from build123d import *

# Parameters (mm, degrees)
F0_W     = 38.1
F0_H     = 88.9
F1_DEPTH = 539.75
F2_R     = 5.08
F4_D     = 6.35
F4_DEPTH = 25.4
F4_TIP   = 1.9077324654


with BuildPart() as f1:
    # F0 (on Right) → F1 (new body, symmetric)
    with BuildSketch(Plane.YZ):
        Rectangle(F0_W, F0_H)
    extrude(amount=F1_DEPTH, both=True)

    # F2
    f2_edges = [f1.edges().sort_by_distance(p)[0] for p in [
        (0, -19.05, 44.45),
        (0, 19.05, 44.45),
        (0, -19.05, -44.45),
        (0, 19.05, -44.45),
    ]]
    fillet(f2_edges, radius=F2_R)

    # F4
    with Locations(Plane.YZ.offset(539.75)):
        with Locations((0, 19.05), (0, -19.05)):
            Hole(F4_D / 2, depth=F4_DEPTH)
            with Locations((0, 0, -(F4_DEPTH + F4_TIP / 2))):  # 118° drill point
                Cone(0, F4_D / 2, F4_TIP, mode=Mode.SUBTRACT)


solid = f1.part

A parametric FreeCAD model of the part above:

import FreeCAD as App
import Part
import Sketcher
Q = App.Units.Quantity


def edges_at(feature, points):
    """Names of the edges that pass closest to the given points."""
    edges = feature.Shape.Edges
    near = lambda p: min(range(len(edges)), key=lambda i: edges[i].distToShape(Part.Vertex(*p))[0])
    return sorted({f"Edge{near(p) + 1}" for p in points})


def add_polygon(sketch, points):
    """Adds a closed chain of lines whose ends are joined by coincident constraints."""
    first, n = sketch.GeometryCount, len(points)
    for a, b in zip(points, points[1:] + points[:1]):
        sketch.addGeometry(Part.LineSegment(App.Vector(*a, 0), App.Vector(*b, 0)), False)
    for i in range(n):
        sketch.addConstraint(Sketcher.Constraint("Coincident", first + i, 2, first + (i + 1) % n, 1))

doc = App.newDocument("Part")
params = doc.addObject("Spreadsheet::Sheet", "Params")
for row, (alias, value) in enumerate([
    ("sketch1_width", "1.5 in"),
    ("sketch1_height", "3.5 in"),
    ("pad1_length", "42.5 in"),
    ("fillet_radius", "0.2 in"),
    ("sketch2_diameter", "0.25 in"),
    ("hole_diameter", "0.25 in"),
    ("hole_depth", "1 in"),
], start=1):
    params.set(f"A{row}", alias)
    params.set(f"B{row}", "=" + value)
    params.setAlias(f"B{row}", alias)

body = doc.addObject("PartDesign::Body", "Body")

# Sketch on YZ plane
sketch1 = doc.addObject("Sketcher::SketchObject", "Sketch")
body.addObject(sketch1)
sketch1.AttachmentSupport = (doc.YZ_Plane, [""])
sketch1.MapMode = "FlatFace"
add_polygon(sketch1, [(-19.05, 44.45), (-19.05, -44.45), (19.05, -44.45), (19.05, 44.45)])  # lines 0-3
sketch1.addConstraint([
    Sketcher.Constraint("Vertical", 0),
    Sketcher.Constraint("Horizontal", 1),
    Sketcher.Constraint("Vertical", 2),
    Sketcher.Constraint("Horizontal", 3),
    Sketcher.Constraint("Symmetric", 0, 2, 2, 2, -1, 1),
    Sketcher.Constraint("DistanceX", 1, 1, 1, 2, Q("1.5 in")),
    Sketcher.Constraint("DistanceY", 0, 2, 0, 1, Q("3.5 in")),
])
sketch1.setExpression("Constraints[9]", "Params.sketch1_width")
sketch1.setExpression("Constraints[10]", "Params.sketch1_height")
pad1 = doc.addObject("PartDesign::Pad", "Pad")
body.addObject(pad1)
pad1.Profile = sketch1
pad1.setExpression("Length", "Params.pad1_length")
pad1.Midplane = True
doc.recompute()

fillet = doc.addObject("PartDesign::Fillet", "Fillet")
body.addObject(fillet)
fillet.Base = (pad1, edges_at(pad1, [
    (0, -19.05, 44.45),
    (0, 19.05, 44.45),
    (0, -19.05, -44.45),
    (0, 19.05, -44.45),
]))
fillet.setExpression("Radius", "Params.fillet_radius")

# Sketch on YZ plane
sketch2 = doc.addObject("Sketcher::SketchObject", "Sketch001")
body.addObject(sketch2)
sketch2.AttachmentSupport = (doc.YZ_Plane, [""])
sketch2.MapMode = "FlatFace"
sketch2.AttachmentOffset = App.Placement(App.Vector(0, 0, 21.25 * 25.4), App.Rotation())
sketch2.addGeometry([
    Part.Circle(App.Vector(0, 19.05, 0), App.Vector(0, 0, 1), 3.175),
    Part.Circle(App.Vector(0, -19.05, 0), App.Vector(0, 0, 1), 3.175),
], False)
sketch2.addConstraint([
    Sketcher.Constraint("Equal", 0, 1),
    Sketcher.Constraint("Symmetric", 0, 3, 1, 3, -1, 1),
    Sketcher.Constraint("PointOnObject", 0, 3, -2),
    Sketcher.Constraint("Diameter", 0, Q("0.25 in")),
    Sketcher.Constraint("DistanceY", 1, 3, 0, 3, Q("1.5 in")),
])
sketch2.setExpression("Constraints[3]", "Params.sketch2_diameter")
doc.recompute()
hole = doc.addObject("PartDesign::Hole", "Hole")
body.addObject(hole)
hole.Profile = sketch2
hole.ThreadType = "None"
hole.setExpression("Diameter", "Params.hole_diameter")
hole.DepthType = "Dimension"
hole.setExpression("Depth", "Params.hole_depth")
hole.DrillPoint = "Angled"
hole.DrillPointAngle = 118

doc.recompute()
